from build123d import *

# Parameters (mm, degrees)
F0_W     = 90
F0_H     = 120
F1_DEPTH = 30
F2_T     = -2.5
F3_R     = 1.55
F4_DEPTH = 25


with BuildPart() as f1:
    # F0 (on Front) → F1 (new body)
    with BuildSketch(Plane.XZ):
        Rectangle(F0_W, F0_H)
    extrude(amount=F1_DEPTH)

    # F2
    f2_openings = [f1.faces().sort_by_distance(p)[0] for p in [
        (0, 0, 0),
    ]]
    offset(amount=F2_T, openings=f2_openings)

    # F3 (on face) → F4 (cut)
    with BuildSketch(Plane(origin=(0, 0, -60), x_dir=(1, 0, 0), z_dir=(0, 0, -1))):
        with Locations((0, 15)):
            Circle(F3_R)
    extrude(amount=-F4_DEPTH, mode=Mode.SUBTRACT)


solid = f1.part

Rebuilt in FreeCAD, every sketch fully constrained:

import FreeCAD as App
import Part
import Sketcher
from FreeCAD import Vector


def faces_at(feature, points):
    """Names of the faces that lie closest to the given points."""
    faces = feature.Shape.Faces
    near = lambda p: min(range(len(faces)), key=lambda i: faces[i].distToShape(Part.Vertex(*p))[0])
    return sorted({f"Face{near(p) + 1}" for p in points})


def add_polygon(sketch, points):
    """Adds a closed chain of lines whose ends are joined by coincident constraints."""
    first, n = sketch.GeometryCount, len(points)
    for a, b in zip(points, points[1:] + points[:1]):
        sketch.addGeometry(Part.LineSegment(App.Vector(*a, 0), App.Vector(*b, 0)), False)
    for i in range(n):
        sketch.addConstraint(Sketcher.Constraint("Coincident", first + i, 2, first + (i + 1) % n, 1))

doc = App.newDocument("Part")
body = doc.addObject("PartDesign::Body", "Body")

# Sketch on XZ plane
sketch1 = body.newObject("Sketcher::SketchObject", "Sketch")
sketch1.AttachmentSupport = (doc.getObject("XZ_Plane"), [""])
sketch1.MapMode = "FlatFace"
add_polygon(sketch1, [(-45, 60), (-45, -60), (45, -60), (45, 60)])  # lines 0-3
sketch1.addConstraint(Sketcher.Constraint("Vertical", 0))
sketch1.addConstraint(Sketcher.Constraint("Horizontal", 1))
sketch1.addConstraint(Sketcher.Constraint("Vertical", 2))
sketch1.addConstraint(Sketcher.Constraint("Horizontal", 3))
sketch1.addConstraint(Sketcher.Constraint("Symmetric", 0, 2, 2, 2, -1, 1))
sketch1.addConstraint(Sketcher.Constraint("DistanceX", 1, 1, 1, 2, 90.0))
sketch1.addConstraint(Sketcher.Constraint("DistanceY", 0, 2, 0, 1, 120.0))
pad1 = body.newObject("PartDesign::Pad", "Pad")
pad1.Profile = sketch1
pad1.Length = 30
doc.recompute()

thickness = body.newObject("PartDesign::Thickness", "Thickness")
thickness.Base = (pad1, faces_at(pad1, [(0, 0, 0)]))
thickness.Value = 2.5
thickness.Reversed = True
thickness.Join = "Arc"

# Sketch on XY plane
sketch2 = body.newObject("Sketcher::SketchObject", "Sketch001")
sketch2.AttachmentSupport = (doc.getObject("XY_Plane"), [""])
sketch2.MapMode = "FlatFace"
sketch2.AttachmentOffset = App.Placement(Vector(0, 0, -60), App.Rotation())
sketch2.addGeometry(Part.Circle(Vector(0, -15, 0), Vector(0, 0, 1), 1.55), False)
sketch2.addConstraint(Sketcher.Constraint("PointOnObject", 0, 3, -2))
sketch2.addConstraint(Sketcher.Constraint("Diameter", 0, 3.1))
sketch2.addConstraint(Sketcher.Constraint("DistanceY", 0, 3, -1, 1, 15.0))
pocket1 = body.newObject("PartDesign::Pocket", "Pocket")
pocket1.Profile = sketch2
pocket1.Length = 25
pocket1.Reversed = True

doc.recompute()
